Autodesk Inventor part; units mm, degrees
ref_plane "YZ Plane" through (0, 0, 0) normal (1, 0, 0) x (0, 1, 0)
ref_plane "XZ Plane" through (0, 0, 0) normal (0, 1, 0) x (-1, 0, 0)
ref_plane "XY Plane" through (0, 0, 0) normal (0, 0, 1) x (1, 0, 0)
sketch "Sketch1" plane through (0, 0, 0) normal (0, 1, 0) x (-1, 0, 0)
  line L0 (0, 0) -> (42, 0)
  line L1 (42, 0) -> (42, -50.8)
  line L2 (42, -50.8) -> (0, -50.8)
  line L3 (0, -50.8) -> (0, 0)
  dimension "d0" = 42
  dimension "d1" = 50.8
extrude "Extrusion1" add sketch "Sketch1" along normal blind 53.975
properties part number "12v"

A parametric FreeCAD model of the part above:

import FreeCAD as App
import Part
import Sketcher
Q = App.Units.Quantity


def add_polygon(sketch, points):
    """Adds a closed chain of lines whose ends are joined by coincident constraints."""
    first, n = sketch.GeometryCount, len(points)
    for a, b in zip(points, points[1:] + points[:1]):
        sketch.addGeometry(Part.LineSegment(App.Vector(*a, 0), App.Vector(*b, 0)), False)
    for i in range(n):
        sketch.addConstraint(Sketcher.Constraint("Coincident", first + i, 2, first + (i + 1) % n, 1))

doc = App.newDocument("Part")
params = doc.addObject("Spreadsheet::Sheet", "Params")
for row, (alias, value) in enumerate([
    ("sketch1_height", "2 in"),
    ("pad1_length", "2.125 in"),
], start=1):
    params.set(f"A{row}", alias)
    params.set(f"B{row}", "=" + value)
    params.setAlias(f"B{row}", alias)

body = doc.addObject("PartDesign::Body", "Body")

# Sketch on XZ plane
sketch1 = body.newObject("Sketcher::SketchObject", "Sketch")
sketch1.AttachmentSupport = (doc.getObject("XZ_Plane"), [""])
sketch1.MapMode = "FlatFace"
add_polygon(sketch1, [(-42, 0), (0, 0), (0, -50.8), (-42, -50.8)])  # lines 0-3
sketch1.addConstraint([
    Sketcher.Constraint("Horizontal", 0),
    Sketcher.Constraint("Vertical", 1),
    Sketcher.Constraint("Horizontal", 2),
    Sketcher.Constraint("Vertical", 3),
    Sketcher.Constraint("Coincident", 0, 2, -1, 1),
    Sketcher.Constraint("DistanceY", 1, 2, 1, 1, Q("2 in")),
    Sketcher.Constraint("DistanceX", 0, 1, 0, 2, 42.0),
])
sketch1.setExpression("Constraints[9]", "Params.sketch1_height")
pad1 = body.newObject("PartDesign::Pad", "Pad")
pad1.Profile = sketch1
pad1.setExpression("Length", "Params.pad1_length")
pad1.Reversed = True

doc.recompute()
